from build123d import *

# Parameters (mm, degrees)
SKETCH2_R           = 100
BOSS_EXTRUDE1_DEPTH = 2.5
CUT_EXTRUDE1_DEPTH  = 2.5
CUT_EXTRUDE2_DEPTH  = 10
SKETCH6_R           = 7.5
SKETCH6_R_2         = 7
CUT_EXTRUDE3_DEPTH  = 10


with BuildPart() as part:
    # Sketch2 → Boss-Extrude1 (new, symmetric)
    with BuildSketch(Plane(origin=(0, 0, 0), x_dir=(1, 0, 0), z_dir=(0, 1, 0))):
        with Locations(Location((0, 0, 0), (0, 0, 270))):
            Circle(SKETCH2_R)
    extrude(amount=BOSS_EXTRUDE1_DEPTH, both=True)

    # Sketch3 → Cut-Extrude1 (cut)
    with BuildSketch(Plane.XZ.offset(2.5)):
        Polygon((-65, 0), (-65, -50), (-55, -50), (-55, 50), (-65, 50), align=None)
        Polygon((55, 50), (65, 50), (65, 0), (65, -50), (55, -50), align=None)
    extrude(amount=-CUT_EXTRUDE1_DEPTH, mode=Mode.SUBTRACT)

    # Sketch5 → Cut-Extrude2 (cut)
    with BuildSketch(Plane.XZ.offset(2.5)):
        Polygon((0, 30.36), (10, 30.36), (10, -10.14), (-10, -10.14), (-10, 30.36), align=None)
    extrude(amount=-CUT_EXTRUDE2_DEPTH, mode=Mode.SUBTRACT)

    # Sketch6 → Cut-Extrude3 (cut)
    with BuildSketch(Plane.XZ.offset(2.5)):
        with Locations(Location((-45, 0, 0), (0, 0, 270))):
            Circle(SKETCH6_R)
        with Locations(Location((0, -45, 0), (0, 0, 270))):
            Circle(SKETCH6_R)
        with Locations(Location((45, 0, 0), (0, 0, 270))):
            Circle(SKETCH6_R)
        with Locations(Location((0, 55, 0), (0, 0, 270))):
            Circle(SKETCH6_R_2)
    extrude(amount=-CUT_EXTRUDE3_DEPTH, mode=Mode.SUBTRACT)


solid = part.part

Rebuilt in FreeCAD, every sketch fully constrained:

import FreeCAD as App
import Part
import Sketcher

V = App.Vector

doc = App.newDocument("Part")
body = doc.addObject("PartDesign::Body", "Body")

# Sketch on XZ plane
sketch1 = body.newObject("Sketcher::SketchObject", "Sketch")
sketch1.AttachmentSupport = (doc.getObject("XZ_Plane"), [""])
sketch1.MapMode = "FlatFace"
sketch1.addGeometry(Part.Circle(V(0, 0, 0), V(0, 0, 1), 100), False)
sketch1.addConstraint([
    Sketcher.Constraint("Coincident", 0, 3, -1, 1),
    Sketcher.Constraint("Diameter", 0, 200.0),
])
pad1 = body.newObject("PartDesign::Pad", "Pad")
pad1.Profile = sketch1
pad1.Length = 5
pad1.Midplane = True

# Sketch on XZ plane
sketch2 = body.newObject("Sketcher::SketchObject", "Sketch001")
sketch2.AttachmentSupport = (doc.getObject("XZ_Plane"), [""])
sketch2.MapMode = "FlatFace"
sketch2.AttachmentOffset = App.Placement(V(0, 0, 2.5), App.Rotation())
sketch2.addGeometry([
    Part.LineSegment(V(-65, -50, 0), V(-55, -50, 0)),  # 0
    Part.LineSegment(V(-55, -50, 0), V(-55, 50, 0)),  # 1
    Part.LineSegment(V(-55, 50, 0), V(-65, 50, 0)),  # 2
    Part.LineSegment(V(-65, 50, 0), V(-65, -50, 0)),  # 3
    Part.LineSegment(V(65, 50, 0), V(55, 50, 0)),  # 4
    Part.LineSegment(V(55, 50, 0), V(55, -50, 0)),  # 5
    Part.LineSegment(V(55, -50, 0), V(65, -50, 0)),  # 6
    Part.LineSegment(V(65, -50, 0), V(65, 50, 0)),  # 7
], False)
sketch2.addConstraint([
    Sketcher.Constraint("Coincident", 0, 2, 1, 1),
    Sketcher.Constraint("Coincident", 1, 2, 2, 1),
    Sketcher.Constraint("Coincident", 2, 2, 3, 1),
    Sketcher.Constraint("Coincident", 3, 2, 0, 1),
    Sketcher.Constraint("Coincident", 4, 2, 5, 1),
    Sketcher.Constraint("Coincident", 5, 2, 6, 1),
    Sketcher.Constraint("Coincident", 6, 2, 7, 1),
    Sketcher.Constraint("Coincident", 7, 2, 4, 1),
    Sketcher.Constraint("Horizontal", 0),
    Sketcher.Constraint("Vertical", 1),
    Sketcher.Constraint("Horizontal", 2),
    Sketcher.Constraint("Vertical", 3),
    Sketcher.Constraint("Horizontal", 4),
    Sketcher.Constraint("Vertical", 5),
    Sketcher.Constraint("Horizontal", 6),
    Sketcher.Constraint("Vertical", 7),
    Sketcher.Constraint("Symmetric", 0, 2, 4, 2, -1, 1),
    Sketcher.Constraint("Symmetric", 2, 2, 6, 2, -1, 1),
    Sketcher.Constraint("Horizontal", 2, 2, 4, 2),
    Sketcher.Constraint("DistanceX", 0, 1, 0, 2, 10.0),
    Sketcher.Constraint("DistanceY", 1, 1, 1, 2, 100.0),
    Sketcher.Constraint("DistanceX", 0, 2, -1, 1, 55.0),
])
pocket1 = body.newObject("PartDesign::Pocket", "Pocket")
pocket1.Profile = sketch2
pocket1.Length = 2.5

# Sketch on XZ plane
sketch3 = body.newObject("Sketcher::SketchObject", "Sketch002")
sketch3.AttachmentSupport = (doc.getObject("XZ_Plane"), [""])
sketch3.MapMode = "FlatFace"
sketch3.AttachmentOffset = App.Placement(V(0, 0, 2.5), App.Rotation())
sketch3.addGeometry([
    Part.LineSegment(V(10, 30, 0), V(-10, 30, 0)),
    Part.LineSegment(V(-10, 30, 0), V(-10, -10, 0)),
    Part.LineSegment(V(-10, -10, 0), V(10, -10, 0)),
    Part.LineSegment(V(10, -10, 0), V(10, 30, 0)),
], False)
sketch3.addConstraint([
    Sketcher.Constraint("Coincident", 0, 2, 1, 1),
    Sketcher.Constraint("Coincident", 1, 2, 2, 1),
    Sketcher.Constraint("Coincident", 2, 2, 3, 1),
    Sketcher.Constraint("Coincident", 3, 2, 0, 1),
    Sketcher.Constraint("Horizontal", 0),
    Sketcher.Constraint("Vertical", 1),
    Sketcher.Constraint("Horizontal", 2),
    Sketcher.Constraint("Vertical", 3),
    Sketcher.Constraint("DistanceX", 0, 2, 0, 1, 20.0),
    Sketcher.Constraint("DistanceY", 1, 2, 1, 1, 40.5),
    Sketcher.Constraint("DistanceX", 0, 2, -1, 1, 10.0),
    Sketcher.Constraint("DistanceY", -1, 1, 0, 2, 30.36),
])
pocket2 = body.newObject("PartDesign::Pocket", "Pocket001")
pocket2.Profile = sketch3
pocket2.Length = 10

# Sketch on XZ plane
sketch4 = body.newObject("Sketcher::SketchObject", "Sketch003")
sketch4.AttachmentSupport = (doc.getObject("XZ_Plane"), [""])
sketch4.MapMode = "FlatFace"
sketch4.AttachmentOffset = App.Placement(V(0, 0, 2.5), App.Rotation())
sketch4.addGeometry([
    Part.Circle(V(-45, 0, 0), V(0, 0, 1), 8),
    Part.Circle(V(0, -45, 0), V(0, 0, 1), 8),
    Part.Circle(V(45, 0, 0), V(0, 0, 1), 8),
    Part.Circle(V(0, 55, 0), V(0, 0, 1), 7),
], False)
sketch4.addConstraint([
    Sketcher.Constraint("Equal", 0, 1),
    Sketcher.Constraint("Equal", 1, 2),
    Sketcher.Constraint("Symmetric", 0, 3, 2, 3, -1, 1),
    Sketcher.Constraint("PointOnObject", 0, 3, -1),
    Sketcher.Constraint("PointOnObject", 1, 3, -2),
    Sketcher.Constraint("PointOnObject", 3, 3, -2),
    Sketcher.Constraint("Diameter", 0, 15.0),
    Sketcher.Constraint("Diameter", 3, 14.0),
    Sketcher.Constraint("DistanceX", 0, 3, -1, 1, 45.0),
    Sketcher.Constraint("DistanceY", 1, 3, -1, 1, 45.0),
    Sketcher.Constraint("DistanceY", -1, 1, 3, 3, 55.0),
])
pocket3 = body.newObject("PartDesign::Pocket", "Pocket002")
pocket3.Profile = sketch4
pocket3.Length = 10

doc.recompute()
